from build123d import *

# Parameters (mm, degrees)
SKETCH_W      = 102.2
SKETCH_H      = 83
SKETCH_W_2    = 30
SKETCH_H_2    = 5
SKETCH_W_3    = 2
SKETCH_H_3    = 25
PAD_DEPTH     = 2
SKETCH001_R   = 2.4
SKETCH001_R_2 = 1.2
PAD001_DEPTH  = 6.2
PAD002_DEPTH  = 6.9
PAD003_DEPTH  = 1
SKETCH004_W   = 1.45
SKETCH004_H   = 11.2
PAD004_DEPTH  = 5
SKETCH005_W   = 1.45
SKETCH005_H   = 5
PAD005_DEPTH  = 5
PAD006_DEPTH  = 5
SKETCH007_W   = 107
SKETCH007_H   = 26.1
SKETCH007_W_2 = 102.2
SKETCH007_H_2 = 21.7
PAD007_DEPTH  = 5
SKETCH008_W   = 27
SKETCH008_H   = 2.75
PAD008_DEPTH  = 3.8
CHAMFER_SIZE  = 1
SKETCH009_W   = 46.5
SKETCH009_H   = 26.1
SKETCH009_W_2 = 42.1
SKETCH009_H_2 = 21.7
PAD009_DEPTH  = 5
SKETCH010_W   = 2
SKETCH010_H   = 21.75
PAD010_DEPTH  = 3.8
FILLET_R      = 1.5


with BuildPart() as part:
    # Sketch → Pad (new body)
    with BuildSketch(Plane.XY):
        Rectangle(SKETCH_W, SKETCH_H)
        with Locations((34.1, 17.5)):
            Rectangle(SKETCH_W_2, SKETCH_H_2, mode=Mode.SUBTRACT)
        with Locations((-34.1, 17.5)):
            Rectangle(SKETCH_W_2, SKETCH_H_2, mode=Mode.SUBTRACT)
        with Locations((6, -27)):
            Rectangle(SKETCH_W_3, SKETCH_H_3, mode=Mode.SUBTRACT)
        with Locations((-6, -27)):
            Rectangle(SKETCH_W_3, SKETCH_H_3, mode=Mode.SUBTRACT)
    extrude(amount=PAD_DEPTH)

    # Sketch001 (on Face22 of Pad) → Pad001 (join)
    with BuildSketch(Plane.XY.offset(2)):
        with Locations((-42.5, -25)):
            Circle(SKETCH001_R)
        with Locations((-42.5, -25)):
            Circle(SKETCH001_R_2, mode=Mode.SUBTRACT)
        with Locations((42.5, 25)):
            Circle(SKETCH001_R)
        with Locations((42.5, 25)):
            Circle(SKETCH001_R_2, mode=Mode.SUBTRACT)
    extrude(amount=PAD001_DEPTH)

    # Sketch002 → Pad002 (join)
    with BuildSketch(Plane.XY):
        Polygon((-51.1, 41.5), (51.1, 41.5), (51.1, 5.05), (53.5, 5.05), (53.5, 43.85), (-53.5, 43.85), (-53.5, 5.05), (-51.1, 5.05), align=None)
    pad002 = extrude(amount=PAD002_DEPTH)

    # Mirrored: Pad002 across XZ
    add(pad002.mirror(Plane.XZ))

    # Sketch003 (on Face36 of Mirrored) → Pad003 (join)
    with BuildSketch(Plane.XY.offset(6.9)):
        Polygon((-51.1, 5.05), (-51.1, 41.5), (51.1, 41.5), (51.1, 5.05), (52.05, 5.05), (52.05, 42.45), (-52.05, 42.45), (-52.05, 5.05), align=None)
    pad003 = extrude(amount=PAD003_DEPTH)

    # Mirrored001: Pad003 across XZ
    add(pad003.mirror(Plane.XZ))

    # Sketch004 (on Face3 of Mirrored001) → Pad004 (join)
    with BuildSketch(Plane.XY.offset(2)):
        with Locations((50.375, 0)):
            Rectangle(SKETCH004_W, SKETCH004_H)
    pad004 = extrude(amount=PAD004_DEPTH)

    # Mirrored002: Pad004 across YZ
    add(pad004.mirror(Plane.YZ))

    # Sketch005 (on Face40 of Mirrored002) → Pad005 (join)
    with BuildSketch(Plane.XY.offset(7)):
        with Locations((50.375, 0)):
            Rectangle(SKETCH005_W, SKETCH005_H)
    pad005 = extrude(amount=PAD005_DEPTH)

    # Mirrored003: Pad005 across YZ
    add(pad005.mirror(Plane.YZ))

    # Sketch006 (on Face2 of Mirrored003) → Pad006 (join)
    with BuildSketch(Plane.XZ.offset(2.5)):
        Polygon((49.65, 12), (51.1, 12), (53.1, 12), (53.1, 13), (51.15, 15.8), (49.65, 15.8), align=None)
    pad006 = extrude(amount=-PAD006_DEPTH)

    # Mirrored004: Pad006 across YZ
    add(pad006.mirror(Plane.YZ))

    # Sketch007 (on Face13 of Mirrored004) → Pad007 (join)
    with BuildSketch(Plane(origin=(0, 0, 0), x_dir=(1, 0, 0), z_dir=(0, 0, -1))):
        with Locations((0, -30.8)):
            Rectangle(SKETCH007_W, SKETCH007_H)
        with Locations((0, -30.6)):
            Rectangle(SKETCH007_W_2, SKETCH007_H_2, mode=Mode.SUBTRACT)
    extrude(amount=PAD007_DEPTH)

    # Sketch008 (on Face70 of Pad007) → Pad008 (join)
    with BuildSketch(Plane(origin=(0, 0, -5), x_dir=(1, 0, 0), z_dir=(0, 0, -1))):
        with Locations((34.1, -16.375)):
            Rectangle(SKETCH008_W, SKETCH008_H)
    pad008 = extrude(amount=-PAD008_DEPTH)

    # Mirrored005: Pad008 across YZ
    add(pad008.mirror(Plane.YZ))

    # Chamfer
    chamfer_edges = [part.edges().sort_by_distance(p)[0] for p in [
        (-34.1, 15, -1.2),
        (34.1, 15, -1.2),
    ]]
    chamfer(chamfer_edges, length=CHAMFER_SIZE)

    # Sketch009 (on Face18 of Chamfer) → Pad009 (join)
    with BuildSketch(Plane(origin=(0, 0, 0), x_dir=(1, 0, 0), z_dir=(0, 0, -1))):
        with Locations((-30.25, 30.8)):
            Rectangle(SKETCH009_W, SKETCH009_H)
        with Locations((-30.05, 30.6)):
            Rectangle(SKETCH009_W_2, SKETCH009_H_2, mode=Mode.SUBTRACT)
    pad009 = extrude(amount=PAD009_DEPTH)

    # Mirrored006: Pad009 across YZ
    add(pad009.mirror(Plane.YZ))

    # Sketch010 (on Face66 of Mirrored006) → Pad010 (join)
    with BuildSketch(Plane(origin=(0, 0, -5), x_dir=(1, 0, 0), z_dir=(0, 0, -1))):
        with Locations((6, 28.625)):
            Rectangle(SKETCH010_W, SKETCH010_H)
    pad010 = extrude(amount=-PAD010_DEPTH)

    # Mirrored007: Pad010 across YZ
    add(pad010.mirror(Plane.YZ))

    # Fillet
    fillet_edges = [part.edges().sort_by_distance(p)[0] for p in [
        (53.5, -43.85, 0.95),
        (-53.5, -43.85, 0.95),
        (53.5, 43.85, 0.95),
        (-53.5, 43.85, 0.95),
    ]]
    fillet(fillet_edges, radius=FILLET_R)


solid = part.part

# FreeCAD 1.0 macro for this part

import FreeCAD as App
import Part
import Sketcher

V = App.Vector


def edges_at(feature, points):
    """Names of the edges that pass closest to the given points."""
    edges = feature.Shape.Edges
    near = lambda p: min(range(len(edges)), key=lambda i: edges[i].distToShape(Part.Vertex(*p))[0])
    return sorted({f"Edge{near(p) + 1}" for p in points})

doc = App.newDocument("Part")
params = doc.addObject("Spreadsheet::Sheet", "Params")
for row, (alias, value) in enumerate([
    ("sketch1_width", "2 mm"),
    ("sketch1_width2", "30 mm"),
    ("sketch1_height", "83 mm"),
    ("sketch1_height2", "25 mm"),
    ("sketch1_height3", "5 mm"),
    ("pad1_length", "2 mm"),
    ("sketch2_diameter", "4.8 mm"),
    ("sketch2_diameter2", "2.4 mm"),
    ("pad2_length", "6.2 mm"),
    ("sketch3_width", "107 mm"),
    ("sketch3_width2", "102.2 mm"),
    ("sketch3_height", "38.8 mm"),
    ("sketch3_height2", "36.45 mm"),
    ("pad3_length", "6.9 mm"),
    ("sketch4_width", "102.2 mm"),
    ("sketch4_width2", "104.1 mm"),
    ("sketch4_height", "37.4 mm"),
    ("sketch4_height2", "36.45 mm"),
    ("pad4_length", "1 mm"),
    ("sketch5_height", "11.2 mm"),
    ("sketch5_width", "1.45 mm"),
    ("pad5_length", "5 mm"),
    ("sketch6_height", "5 mm"),
    ("sketch6_width", "1.45 mm"),
    ("pad6_length", "5 mm"),
    ("sketch7_height", "1 mm"),
    ("sketch7_width", "1.5 mm"),
    ("sketch7_height2", "3.8 mm"),
    ("sketch7_width2", "3.45 mm"),
    ("pad7_length", "5 mm"),
    ("sketch8_width", "107 mm"),
    ("sketch8_width2", "102.2 mm"),
    ("sketch8_height", "26.1 mm"),
    ("sketch8_height2", "21.7 mm"),
    ("pad8_length", "5 mm"),
    ("sketch9_width", "27 mm"),
    ("sketch9_height", "2.75 mm"),
    ("pad9_length", "3.8 mm"),
    ("chamfer_size", "1 mm"),
    ("sketch10_width", "46.5 mm"),
    ("sketch10_width2", "42.1 mm"),
    ("sketch10_height", "26.1 mm"),
    ("sketch10_height2", "21.7 mm"),
    ("pad10_length", "5 mm"),
    ("sketch11_width", "2 mm"),
    ("sketch11_height", "21.75 mm"),
    ("pad11_length", "3.8 mm"),
    ("fillet_radius", "1.5 mm"),
], start=1):
    params.set(f"A{row}", alias)
    params.set(f"B{row}", "=" + value)
    params.setAlias(f"B{row}", alias)

body = doc.addObject("PartDesign::Body", "Body")

sketch1 = doc.addObject("Sketcher::SketchObject", "Sketch")
body.addObject(sketch1)
sketch1.AttachmentSupport = (doc.XY_Plane, [""])
sketch1.MapMode = "FlatFace"
sketch1.addGeometry(Part.LineSegment(V(-51.1, 41.5, 0), V(-51.1, -41.5, 0)), False)
sketch1.addGeometry(Part.LineSegment(V(-51.1, -41.5, 0), V(51.1, -41.5, 0)), False)
sketch1.addGeometry(Part.LineSegment(V(51.1, -41.5, 0), V(51.1, 41.5, 0)), False)
sketch1.addGeometry(Part.LineSegment(V(51.1, 41.5, 0), V(-51.1, 41.5, 0)), False)
sketch1.addGeometry(Part.LineSegment(V(-5, -39.5, 0), V(-7, -39.5, 0)), False)
sketch1.addGeometry(Part.LineSegment(V(-7, -39.5, 0), V(-7, -14.5, 0)), False)
sketch1.addGeometry(Part.LineSegment(V(-7, -14.5, 0), V(-5, -14.5, 0)), False)
sketch1.addGeometry(Part.LineSegment(V(-5, -14.5, 0), V(-5, -39.5, 0)), False)
sketch1.addGeometry(Part.LineSegment(V(7, -39.5, 0), V(5, -39.5, 0)), False)
sketch1.addGeometry(Part.LineSegment(V(5, -39.5, 0), V(5, -14.5, 0)), False)
sketch1.addGeometry(Part.LineSegment(V(5, -14.5, 0), V(7, -14.5, 0)), False)
sketch1.addGeometry(Part.LineSegment(V(7, -14.5, 0), V(7, -39.5, 0)), False)
sketch1.addGeometry(Part.LineSegment(V(-19.1, 15, 0), V(-49.1, 15, 0)), False)
sketch1.addGeometry(Part.LineSegment(V(-49.1, 15, 0), V(-49.1, 20, 0)), False)
sketch1.addGeometry(Part.LineSegment(V(-49.1, 20, 0), V(-19.1, 20, 0)), False)
sketch1.addGeometry(Part.LineSegment(V(-19.1, 20, 0), V(-19.1, 15, 0)), False)
sketch1.addGeometry(Part.LineSegment(V(49.1, 15, 0), V(19.1, 15, 0)), False)
sketch1.addGeometry(Part.LineSegment(V(19.1, 15, 0), V(19.1, 20, 0)), False)
sketch1.addGeometry(Part.LineSegment(V(19.1, 20, 0), V(49.1, 20, 0)), False)
sketch1.addGeometry(Part.LineSegment(V(49.1, 20, 0), V(49.1, 15, 0)), False)
sketch1.addConstraint(Sketcher.Constraint("Coincident", 0, 2, 1, 1))
sketch1.addConstraint(Sketcher.Constraint("Coincident", 1, 2, 2, 1))
sketch1.addConstraint(Sketcher.Constraint("Coincident", 2, 2, 3, 1))
sketch1.addConstraint(Sketcher.Constraint("Coincident", 3, 2, 0, 1))
sketch1.addConstraint(Sketcher.Constraint("Coincident", 4, 2, 5, 1))
sketch1.addConstraint(Sketcher.Constraint("Coincident", 5, 2, 6, 1))
sketch1.addConstraint(Sketcher.Constraint("Coincident", 6, 2, 7, 1))
sketch1.addConstraint(Sketcher.Constraint("Coincident", 7, 2, 4, 1))
sketch1.addConstraint(Sketcher.Constraint("Coincident", 8, 2, 9, 1))
sketch1.addConstraint(Sketcher.Constraint("Coincident", 9, 2, 10, 1))
sketch1.addConstraint(Sketcher.Constraint("Coincident", 10, 2, 11, 1))
sketch1.addConstraint(Sketcher.Constraint("Coincident", 11, 2, 8, 1))
sketch1.addConstraint(Sketcher.Constraint("Coincident", 12, 2, 13, 1))
sketch1.addConstraint(Sketcher.Constraint("Coincident", 13, 2, 14, 1))
sketch1.addConstraint(Sketcher.Constraint("Coincident", 14, 2, 15, 1))
sketch1.addConstraint(Sketcher.Constraint("Coincident", 15, 2, 12, 1))
sketch1.addConstraint(Sketcher.Constraint("Coincident", 16, 2, 17, 1))
sketch1.addConstraint(Sketcher.Constraint("Coincident", 17, 2, 18, 1))
sketch1.addConstraint(Sketcher.Constraint("Coincident", 18, 2, 19, 1))
sketch1.addConstraint(Sketcher.Constraint("Coincident", 19, 2, 16, 1))
sketch1.addConstraint(Sketcher.Constraint("Vertical", 0))
sketch1.addConstraint(Sketcher.Constraint("Horizontal", 1))
sketch1.addConstraint(Sketcher.Constraint("Vertical", 2))
sketch1.addConstraint(Sketcher.Constraint("Horizontal", 3))
sketch1.addConstraint(Sketcher.Constraint("Horizontal", 4))
sketch1.addConstraint(Sketcher.Constraint("Vertical", 5))
sketch1.addConstraint(Sketcher.Constraint("Horizontal", 6))
sketch1.addConstraint(Sketcher.Constraint("Vertical", 7))
sketch1.addConstraint(Sketcher.Constraint("Horizontal", 8))
sketch1.addConstraint(Sketcher.Constraint("Vertical", 9))
sketch1.addConstraint(Sketcher.Constraint("Horizontal", 10))
sketch1.addConstraint(Sketcher.Constraint("Vertical", 11))
sketch1.addConstraint(Sketcher.Constraint("Horizontal", 12))
sketch1.addConstraint(Sketcher.Constraint("Vertical", 13))
sketch1.addConstraint(Sketcher.Constraint("Horizontal", 14))
sketch1.addConstraint(Sketcher.Constraint("Vertical", 15))
sketch1.addConstraint(Sketcher.Constraint("Horizontal", 16))
sketch1.addConstraint(Sketcher.Constraint("Vertical", 17))
sketch1.addConstraint(Sketcher.Constraint("Horizontal", 18))
sketch1.addConstraint(Sketcher.Constraint("Vertical", 19))
sketch1.addConstraint(Sketcher.Constraint("Symmetric", 0, 2, 2, 2, -1, 1))
sketch1.addConstraint(Sketcher.Constraint("Symmetric", 7, 2, 8, 2, -2))
sketch1.addConstraint(Sketcher.Constraint("Symmetric", 5, 2, 10, 2, -2))
sketch1.addConstraint(Sketcher.Constraint("Symmetric", 15, 2, 16, 2, -2))
sketch1.addConstraint(Sketcher.Constraint("Symmetric", 13, 2, 18, 2, -2))
sketch1.addConstraint(Sketcher.Constraint("DistanceX", 4, 2, 4, 1, 2.0))
sketch1.addConstraint(Sketcher.Constraint("DistanceX", 12, 2, 12, 1, 30.0))
sketch1.addConstraint(Sketcher.Constraint("DistanceY", 0, 2, 0, 1, 83.0))
sketch1.addConstraint(Sketcher.Constraint("DistanceY", 5, 1, 5, 2, 25.0))
sketch1.addConstraint(Sketcher.Constraint("DistanceY", 13, 1, 13, 2, 5.0))
sketch1.addConstraint(Sketcher.Constraint("DistanceX", 1, 1, 1, 2, 102.2))
sketch1.addConstraint(Sketcher.Constraint("DistanceX", 4, 2, -1, 1, 7.0))
sketch1.addConstraint(Sketcher.Constraint("DistanceY", -1, 1, 12, 2, 15.0))
sketch1.addConstraint(Sketcher.Constraint("DistanceY", 0, 2, 4, 2, 2.0))
sketch1.addConstraint(Sketcher.Constraint("DistanceX", 3, 2, 12, 2, 2.0))
sketch1.setExpression("Constraints[45]", "Params.sketch1_width")
sketch1.setExpression("Constraints[46]", "Params.sketch1_width2")
sketch1.setExpression("Constraints[47]", "Params.sketch1_height")
sketch1.setExpression("Constraints[48]", "Params.sketch1_height2")
sketch1.setExpression("Constraints[49]", "Params.sketch1_height3")
pad1 = doc.addObject("PartDesign::Pad", "Pad")
body.addObject(pad1)
pad1.Profile = sketch1
pad1.setExpression("Length", "Params.pad1_length")

sketch2 = doc.addObject("Sketcher::SketchObject", "Sketch001")
body.addObject(sketch2)
sketch2.AttachmentSupport = (doc.XY_Plane, [""])
sketch2.MapMode = "FlatFace"
sketch2.AttachmentOffset = App.Placement(V(0, 0, 2), App.Rotation())
sketch2.addGeometry(Part.Circle(V(-42.5, -25, 0), V(0, 0, 1), 2.4), False)
sketch2.addGeometry(Part.Circle(V(-42.5, -25, 0), V(0, 0, 1), 1.2), False)
sketch2.addGeometry(Part.Circle(V(42.5, 25, 0), V(0, 0, 1), 2.4), False)
sketch2.addGeometry(Part.Circle(V(42.5, 25, 0), V(0, 0, 1), 1.2), False)
sketch2.addConstraint(Sketcher.Constraint("Coincident", 1, 3, 0, 3))
sketch2.addConstraint(Sketcher.Constraint("Coincident", 3, 3, 2, 3))
sketch2.addConstraint(Sketcher.Constraint("Equal", 0, 2))
sketch2.addConstraint(Sketcher.Constraint("Equal", 1, 3))
sketch2.addConstraint(Sketcher.Constraint("Symmetric", 0, 3, 2, 3, -1, 1))
sketch2.addConstraint(Sketcher.Constraint("Diameter", 0, 4.8))
sketch2.addConstraint(Sketcher.Constraint("Diameter", 1, 2.4))
sketch2.addConstraint(Sketcher.Constraint("DistanceY", 0, 3, -1, 1, 25.0))
sketch2.addConstraint(Sketcher.Constraint("DistanceX", 0, 3, 2, 3, 85.0))
sketch2.setExpression("Constraints[5]", "Params.sketch2_diameter")
sketch2.setExpression("Constraints[6]", "Params.sketch2_diameter2")
pad2 = doc.addObject("PartDesign::Pad", "Pad001")
body.addObject(pad2)
pad2.Profile = sketch2
pad2.setExpression("Length", "Params.pad2_length")

sketch3 = doc.addObject("Sketcher::SketchObject", "Sketch002")
body.addObject(sketch3)
sketch3.AttachmentSupport = (doc.XY_Plane, [""])
sketch3.MapMode = "FlatFace"
sketch3.addGeometry(Part.LineSegment(V(-51.1, 41.5, 0), V(51.1, 41.5, 0)), False)
sketch3.addGeometry(Part.LineSegment(V(51.1, 41.5, 0), V(51.1, 5.05, 0)), False)
sketch3.addGeometry(Part.LineSegment(V(51.1, 5.05, 0), V(53.5, 5.05, 0)), False)
sketch3.addGeometry(Part.LineSegment(V(53.5, 5.05, 0), V(53.5, 43.85, 0)), False)
sketch3.addGeometry(Part.LineSegment(V(53.5, 43.85, 0), V(-53.5, 43.85, 0)), False)
sketch3.addGeometry(Part.LineSegment(V(-53.5, 43.85, 0), V(-53.5, 5.05, 0)), False)
sketch3.addGeometry(Part.LineSegment(V(-53.5, 5.05, 0), V(-51.1, 5.05, 0)), False)
sketch3.addGeometry(Part.LineSegment(V(-51.1, 5.05, 0), V(-51.1, 41.5, 0)), False)
sketch3.addConstraint(Sketcher.Constraint("Coincident", 0, 2, 1, 1))
sketch3.addConstraint(Sketcher.Constraint("Coincident", 1, 2, 2, 1))
sketch3.addConstraint(Sketcher.Constraint("Coincident", 2, 2, 3, 1))
sketch3.addConstraint(Sketcher.Constraint("Coincident", 3, 2, 4, 1))
sketch3.addConstraint(Sketcher.Constraint("Coincident", 4, 2, 5, 1))
sketch3.addConstraint(Sketcher.Constraint("Coincident", 5, 2, 6, 1))
sketch3.addConstraint(Sketcher.Constraint("Coincident", 6, 2, 7, 1))
sketch3.addConstraint(Sketcher.Constraint("Coincident", 7, 2, 0, 1))
sketch3.addConstraint(Sketcher.Constraint("Horizontal", 0))
sketch3.addConstraint(Sketcher.Constraint("Vertical", 1))
sketch3.addConstraint(Sketcher.Constraint("Horizontal", 2))
sketch3.addConstraint(Sketcher.Constraint("Vertical", 3))
sketch3.addConstraint(Sketcher.Constraint("Horizontal", 4))
sketch3.addConstraint(Sketcher.Constraint("Vertical", 5))
sketch3.addConstraint(Sketcher.Constraint("Horizontal", 6))
sketch3.addConstraint(Sketcher.Constraint("Vertical", 7))
sketch3.addConstraint(Sketcher.Constraint("Symmetric", 2, 2, 5, 2, -2))
sketch3.addConstraint(Sketcher.Constraint("Equal", 2, 6))
sketch3.addConstraint(Sketcher.Constraint("DistanceX", 4, 2, 4, 1, 107.0))
sketch3.addConstraint(Sketcher.Constraint("DistanceX", 0, 1, 0, 2, 102.2))
sketch3.addConstraint(Sketcher.Constraint("DistanceY", 3, 1, 3, 2, 38.8))
sketch3.addConstraint(Sketcher.Constraint("DistanceY", 1, 2, 1, 1, 36.45))
sketch3.addConstraint(Sketcher.Constraint("DistanceY", -1, 1, 0, 2, 41.5))
sketch3.setExpression("Constraints[18]", "Params.sketch3_width")
sketch3.setExpression("Constraints[19]", "Params.sketch3_width2")
sketch3.setExpression("Constraints[20]", "Params.sketch3_height")
sketch3.setExpression("Constraints[21]", "Params.sketch3_height2")
pad3 = doc.addObject("PartDesign::Pad", "Pad002")
body.addObject(pad3)
pad3.Profile = sketch3
pad3.setExpression("Length", "Params.pad3_length")
doc.recompute()

mirrored = doc.addObject("PartDesign::Mirrored", "Mirrored")
body.addObject(mirrored)
mirrored.Originals = [pad3]
mirrored.MirrorPlane = (doc.XZ_Plane, [""])
body.Tip = mirrored

sketch4 = doc.addObject("Sketcher::SketchObject", "Sketch003")
body.addObject(sketch4)
sketch4.AttachmentSupport = (doc.XY_Plane, [""])
sketch4.MapMode = "FlatFace"
sketch4.AttachmentOffset = App.Placement(V(0, 0, 6.9), App.Rotation())
sketch4.addGeometry(Part.LineSegment(V(-51.1, 5.05, 0), V(-51.1, 41.5, 0)), False)
sketch4.addGeometry(Part.LineSegment(V(-51.1, 41.5, 0), V(51.1, 41.5, 0)), False)
sketch4.addGeometry(Part.LineSegment(V(51.1, 41.5, 0), V(51.1, 5.05, 0)), False)
sketch4.addGeometry(Part.LineSegment(V(51.1, 5.05, 0), V(52.05, 5.05, 0)), False)
sketch4.addGeometry(Part.LineSegment(V(52.05, 5.05, 0), V(52.05, 42.45, 0)), False)
sketch4.addGeometry(Part.LineSegment(V(52.05, 42.45, 0), V(-52.05, 42.45, 0)), False)
sketch4.addGeometry(Part.LineSegment(V(-52.05, 42.45, 0), V(-52.05, 5.05, 0)), False)
sketch4.addGeometry(Part.LineSegment(V(-52.05, 5.05, 0), V(-51.1, 5.05, 0)), False)
sketch4.addConstraint(Sketcher.Constraint("Coincident", 0, 2, 1, 1))
sketch4.addConstraint(Sketcher.Constraint("Coincident", 1, 2, 2, 1))
sketch4.addConstraint(Sketcher.Constraint("Coincident", 2, 2, 3, 1))
sketch4.addConstraint(Sketcher.Constraint("Coincident", 3, 2, 4, 1))
sketch4.addConstraint(Sketcher.Constraint("Coincident", 4, 2, 5, 1))
sketch4.addConstraint(Sketcher.Constraint("Coincident", 5, 2, 6, 1))
sketch4.addConstraint(Sketcher.Constraint("Coincident", 6, 2, 7, 1))
sketch4.addConstraint(Sketcher.Constraint("Coincident", 7, 2, 0, 1))
sketch4.addConstraint(Sketcher.Constraint("Vertical", 0))
sketch4.addConstraint(Sketcher.Constraint("Horizontal", 1))
sketch4.addConstraint(Sketcher.Constraint("Vertical", 2))
sketch4.addConstraint(Sketcher.Constraint("Horizontal", 3))
sketch4.addConstraint(Sketcher.Constraint("Vertical", 4))
sketch4.addConstraint(Sketcher.Constraint("Horizontal", 5))
sketch4.addConstraint(Sketcher.Constraint("Vertical", 6))
sketch4.addConstraint(Sketcher.Constraint("Horizontal", 7))
sketch4.addConstraint(Sketcher.Constraint("Symmetric", 3, 2, 6, 2, -2))
sketch4.addConstraint(Sketcher.Constraint("Equal", 3, 7))
sketch4.addConstraint(Sketcher.Constraint("DistanceX", 1, 1, 1, 2, 102.2))
sketch4.addConstraint(Sketcher.Constraint("DistanceX", 5, 2, 5, 1, 104.1))
sketch4.addConstraint(Sketcher.Constraint("DistanceY", 4, 1, 4, 2, 37.4))
sketch4.addConstraint(Sketcher.Constraint("DistanceY", 0, 1, 0, 2, 36.45))
sketch4.addConstraint(Sketcher.Constraint("DistanceY", -1, 1, 0, 2, 41.5))
sketch4.setExpression("Constraints[18]", "Params.sketch4_width")
sketch4.setExpression("Constraints[19]", "Params.sketch4_width2")
sketch4.setExpression("Constraints[20]", "Params.sketch4_height")
sketch4.setExpression("Constraints[21]", "Params.sketch4_height2")
pad4 = doc.addObject("PartDesign::Pad", "Pad003")
body.addObject(pad4)
pad4.Profile = sketch4
pad4.setExpression("Length", "Params.pad4_length")
doc.recompute()

mirrored2 = doc.addObject("PartDesign::Mirrored", "Mirrored001")
body.addObject(mirrored2)
mirrored2.Originals = [pad4]
mirrored2.MirrorPlane = (doc.XZ_Plane, [""])
body.Tip = mirrored2

sketch5 = doc.addObject("Sketcher::SketchObject", "Sketch004")
body.addObject(sketch5)
sketch5.AttachmentSupport = (doc.XY_Plane, [""])
sketch5.MapMode = "FlatFace"
sketch5.AttachmentOffset = App.Placement(V(0, 0, 2), App.Rotation())
sketch5.addGeometry(Part.LineSegment(V(49.65, 5.6, 0), V(49.65, -5.6, 0)), False)
sketch5.addGeometry(Part.LineSegment(V(49.65, -5.6, 0), V(51.1, -5.6, 0)), False)
sketch5.addGeometry(Part.LineSegment(V(51.1, -5.6, 0), V(51.1, 5.6, 0)), False)
sketch5.addGeometry(Part.LineSegment(V(51.1, 5.6, 0), V(49.65, 5.6, 0)), False)
sketch5.addConstraint(Sketcher.Constraint("Coincident", 0, 2, 1, 1))
sketch5.addConstraint(Sketcher.Constraint("Coincident", 1, 2, 2, 1))
sketch5.addConstraint(Sketcher.Constraint("Coincident", 2, 2, 3, 1))
sketch5.addConstraint(Sketcher.Constraint("Coincident", 3, 2, 0, 1))
sketch5.addConstraint(Sketcher.Constraint("Vertical", 0))
sketch5.addConstraint(Sketcher.Constraint("Horizontal", 1))
sketch5.addConstraint(Sketcher.Constraint("Vertical", 2))
sketch5.addConstraint(Sketcher.Constraint("Horizontal", 3))
sketch5.addConstraint(Sketcher.Constraint("DistanceY", 0, 2, 0, 1, 11.2))
sketch5.addConstraint(Sketcher.Constraint("DistanceX", 1, 1, 1, 2, 1.45))
sketch5.addConstraint(Sketcher.Constraint("DistanceY", 0, 2, -1, 1, 5.6))
sketch5.addConstraint(Sketcher.Constraint("DistanceX", -1, 1, 1, 2, 51.1))
sketch5.setExpression("Constraints[8]", "Params.sketch5_height")
sketch5.setExpression("Constraints[9]", "Params.sketch5_width")
pad5 = doc.addObject("PartDesign::Pad", "Pad004")
body.addObject(pad5)
pad5.Profile = sketch5
pad5.setExpression("Length", "Params.pad5_length")
doc.recompute()

mirrored3 = doc.addObject("PartDesign::Mirrored", "Mirrored002")
body.addObject(mirrored3)
mirrored3.Originals = [pad5]
mirrored3.MirrorPlane = (doc.YZ_Plane, [""])
body.Tip = mirrored3

sketch6 = doc.addObject("Sketcher::SketchObject", "Sketch005")
body.addObject(sketch6)
sketch6.AttachmentSupport = (doc.XY_Plane, [""])
sketch6.MapMode = "FlatFace"
sketch6.AttachmentOffset = App.Placement(V(0, 0, 7), App.Rotation())
sketch6.addGeometry(Part.LineSegment(V(49.65, 2.5, 0), V(49.65, -2.5, 0)), False)
sketch6.addGeometry(Part.LineSegment(V(49.65, -2.5, 0), V(51.1, -2.5, 0)), False)
sketch6.addGeometry(Part.LineSegment(V(51.1, -2.5, 0), V(51.1, 2.5, 0)), False)
sketch6.addGeometry(Part.LineSegment(V(51.1, 2.5, 0), V(49.65, 2.5, 0)), False)
sketch6.addConstraint(Sketcher.Constraint("Coincident", 0, 2, 1, 1))
sketch6.addConstraint(Sketcher.Constraint("Coincident", 1, 2, 2, 1))
sketch6.addConstraint(Sketcher.Constraint("Coincident", 2, 2, 3, 1))
sketch6.addConstraint(Sketcher.Constraint("Coincident", 3, 2, 0, 1))
sketch6.addConstraint(Sketcher.Constraint("Vertical", 0))
sketch6.addConstraint(Sketcher.Constraint("Horizontal", 1))
sketch6.addConstraint(Sketcher.Constraint("Vertical", 2))
sketch6.addConstraint(Sketcher.Constraint("Horizontal", 3))
sketch6.addConstraint(Sketcher.Constraint("DistanceY", 0, 2, 0, 1, 5.0))
sketch6.addConstraint(Sketcher.Constraint("DistanceX", 1, 1, 1, 2, 1.45))
sketch6.addConstraint(Sketcher.Constraint("DistanceY", 0, 2, -1, 1, 2.5))
sketch6.addConstraint(Sketcher.Constraint("DistanceX", -1, 1, 1, 2, 51.1))
sketch6.setExpression("Constraints[8]", "Params.sketch6_height")
sketch6.setExpression("Constraints[9]", "Params.sketch6_width")
pad6 = doc.addObject("PartDesign::Pad", "Pad005")
body.addObject(pad6)
pad6.Profile = sketch6
pad6.setExpression("Length", "Params.pad6_length")
doc.recompute()

mirrored4 = doc.addObject("PartDesign::Mirrored", "Mirrored003")
body.addObject(mirrored4)
mirrored4.Originals = [pad6]
mirrored4.MirrorPlane = (doc.YZ_Plane, [""])
body.Tip = mirrored4

sketch7 = doc.addObject("Sketcher::SketchObject", "Sketch006")
body.addObject(sketch7)
sketch7.AttachmentSupport = (doc.XZ_Plane, [""])
sketch7.MapMode = "FlatFace"
sketch7.AttachmentOffset = App.Placement(V(0, 0, 2.5), App.Rotation())
sketch7.addGeometry(Part.LineSegment(V(49.65, 12, 0), V(53.1, 12, 0)), False)
sketch7.addGeometry(Part.LineSegment(V(53.1, 12, 0), V(53.1, 13, 0)), False)
sketch7.addGeometry(Part.LineSegment(V(53.1, 13, 0), V(51.15, 15.8, 0)), False)
sketch7.addGeometry(Part.LineSegment(V(51.15, 15.8, 0), V(49.65, 15.8, 0)), False)
sketch7.addGeometry(Part.LineSegment(V(49.65, 15.8, 0), V(49.65, 12, 0)), False)
sketch7.addConstraint(Sketcher.Constraint("Coincident", 0, 2, 1, 1))
sketch7.addConstraint(Sketcher.Constraint("Coincident", 1, 2, 2, 1))
sketch7.addConstraint(Sketcher.Constraint("Coincident", 2, 2, 3, 1))
sketch7.addConstraint(Sketcher.Constraint("Coincident", 3, 2, 4, 1))
sketch7.addConstraint(Sketcher.Constraint("Coincident", 4, 2, 0, 1))
sketch7.addConstraint(Sketcher.Constraint("Horizontal", 0))
sketch7.addConstraint(Sketcher.Constraint("Vertical", 1))
sketch7.addConstraint(Sketcher.Constraint("Horizontal", 3))
sketch7.addConstraint(Sketcher.Constraint("Vertical", 4))
sketch7.addConstraint(Sketcher.Constraint("DistanceY", 1, 1, 1, 2, 1.0))
sketch7.addConstraint(Sketcher.Constraint("DistanceX", 3, 2, 3, 1, 1.5))
sketch7.addConstraint(Sketcher.Constraint("DistanceY", 4, 2, 4, 1, 3.8))
sketch7.addConstraint(Sketcher.Constraint("DistanceY", -1, 1, 0, 2, 12.0))
sketch7.addConstraint(Sketcher.Constraint("DistanceX", 0, 1, 0, 2, 3.45))
sketch7.addConstraint(Sketcher.Constraint("DistanceX", -1, 1, 0, 2, 53.1))
sketch7.setExpression("Constraints[9]", "Params.sketch7_height")
sketch7.setExpression("Constraints[10]", "Params.sketch7_width")
sketch7.setExpression("Constraints[11]", "Params.sketch7_height2")
sketch7.setExpression("Constraints[13]", "Params.sketch7_width2")
pad7 = doc.addObject("PartDesign::Pad", "Pad006")
body.addObject(pad7)
pad7.Profile = sketch7
pad7.setExpression("Length", "Params.pad7_length")
pad7.Reversed = True
doc.recompute()

mirrored5 = doc.addObject("PartDesign::Mirrored", "Mirrored004")
body.addObject(mirrored5)
mirrored5.Originals = [pad7]
mirrored5.MirrorPlane = (doc.YZ_Plane, [""])
body.Tip = mirrored5

sketch8 = doc.addObject("Sketcher::SketchObject", "Sketch007")
body.addObject(sketch8)
sketch8.AttachmentSupport = (doc.XY_Plane, [""])
sketch8.MapMode = "FlatFace"
sketch8.addGeometry(Part.LineSegment(V(-53.5, 17.75, 0), V(-53.5, 43.85, 0)), False)
sketch8.addGeometry(Part.LineSegment(V(-53.5, 43.85, 0), V(53.5, 43.85, 0)), False)
sketch8.addGeometry(Part.LineSegment(V(53.5, 43.85, 0), V(53.5, 17.75, 0)), False)
sketch8.addGeometry(Part.LineSegment(V(53.5, 17.75, 0), V(-53.5, 17.75, 0)), False)
sketch8.addGeometry(Part.LineSegment(V(51.1, 41.45, 0), V(-51.1, 41.45, 0)), False)
sketch8.addGeometry(Part.LineSegment(V(-51.1, 41.45, 0), V(-51.1, 19.75, 0)), False)
sketch8.addGeometry(Part.LineSegment(V(-51.1, 19.75, 0), V(51.1, 19.75, 0)), False)
sketch8.addGeometry(Part.LineSegment(V(51.1, 19.75, 0), V(51.1, 41.45, 0)), False)
sketch8.addConstraint(Sketcher.Constraint("Coincident", 0, 2, 1, 1))
sketch8.addConstraint(Sketcher.Constraint("Coincident", 1, 2, 2, 1))
sketch8.addConstraint(Sketcher.Constraint("Coincident", 2, 2, 3, 1))
sketch8.addConstraint(Sketcher.Constraint("Coincident", 3, 2, 0, 1))
sketch8.addConstraint(Sketcher.Constraint("Coincident", 4, 2, 5, 1))
sketch8.addConstraint(Sketcher.Constraint("Coincident", 5, 2, 6, 1))
sketch8.addConstraint(Sketcher.Constraint("Coincident", 6, 2, 7, 1))
sketch8.addConstraint(Sketcher.Constraint("Coincident", 7, 2, 4, 1))
sketch8.addConstraint(Sketcher.Constraint("Vertical", 0))
sketch8.addConstraint(Sketcher.Constraint("Horizontal", 1))
sketch8.addConstraint(Sketcher.Constraint("Vertical", 2))
sketch8.addConstraint(Sketcher.Constraint("Horizontal", 3))
sketch8.addConstraint(Sketcher.Constraint("Horizontal", 4))
sketch8.addConstraint(Sketcher.Constraint("Vertical", 5))
sketch8.addConstraint(Sketcher.Constraint("Horizontal", 6))
sketch8.addConstraint(Sketcher.Constraint("Vertical", 7))
sketch8.addConstraint(Sketcher.Constraint("DistanceX", 1, 1, 1, 2, 107.0))
sketch8.addConstraint(Sketcher.Constraint("DistanceX", 4, 2, 4, 1, 102.2))
sketch8.addConstraint(Sketcher.Constraint("DistanceY", 0, 1, 0, 2, 26.1))
sketch8.addConstraint(Sketcher.Constraint("DistanceY", 5, 2, 5, 1, 21.7))
sketch8.addConstraint(Sketcher.Constraint("DistanceY", 3, 2, 5, 2, 2.0))
sketch8.addConstraint(Sketcher.Constraint("DistanceX", 0, 2, -1, 1, 53.5))
sketch8.addConstraint(Sketcher.Constraint("DistanceX", 4, 2, -1, 1, 51.1))
sketch8.addConstraint(Sketcher.Constraint("DistanceY", -1, 1, 0, 2, 43.85))
sketch8.setExpression("Constraints[16]", "Params.sketch8_width")
sketch8.setExpression("Constraints[17]", "Params.sketch8_width2")
sketch8.setExpression("Constraints[18]", "Params.sketch8_height")
sketch8.setExpression("Constraints[19]", "Params.sketch8_height2")
pad8 = doc.addObject("PartDesign::Pad", "Pad007")
body.addObject(pad8)
pad8.Profile = sketch8
pad8.setExpression("Length", "Params.pad8_length")
pad8.Reversed = True

sketch9 = doc.addObject("Sketcher::SketchObject", "Sketch008")
body.addObject(sketch9)
sketch9.AttachmentSupport = (doc.XY_Plane, [""])
sketch9.MapMode = "FlatFace"
sketch9.AttachmentOffset = App.Placement(V(0, 0, -5), App.Rotation())
sketch9.addGeometry(Part.LineSegment(V(20.6, 15, 0), V(20.6, 17.75, 0)), False)
sketch9.addGeometry(Part.LineSegment(V(20.6, 17.75, 0), V(47.6, 17.75, 0)), False)
sketch9.addGeometry(Part.LineSegment(V(47.6, 17.75, 0), V(47.6, 15, 0)), False)
sketch9.addGeometry(Part.LineSegment(V(47.6, 15, 0), V(20.6, 15, 0)), False)
sketch9.addConstraint(Sketcher.Constraint("Coincident", 0, 2, 1, 1))
sketch9.addConstraint(Sketcher.Constraint("Coincident", 1, 2, 2, 1))
sketch9.addConstraint(Sketcher.Constraint("Coincident", 2, 2, 3, 1))
sketch9.addConstraint(Sketcher.Constraint("Coincident", 3, 2, 0, 1))
sketch9.addConstraint(Sketcher.Constraint("Vertical", 0))
sketch9.addConstraint(Sketcher.Constraint("Horizontal", 1))
sketch9.addConstraint(Sketcher.Constraint("Vertical", 2))
sketch9.addConstraint(Sketcher.Constraint("Horizontal", 3))
sketch9.addConstraint(Sketcher.Constraint("DistanceX", 1, 1, 1, 2, 27.0))
sketch9.addConstraint(Sketcher.Constraint("DistanceY", -1, 1, 2, 2, 15.0))
sketch9.addConstraint(Sketcher.Constraint("DistanceY", 0, 1, 0, 2, 2.75))
sketch9.addConstraint(Sketcher.Constraint("DistanceX", -1, 1, 0, 2, 20.6))
sketch9.setExpression("Constraints[8]", "Params.sketch9_width")
sketch9.setExpression("Constraints[10]", "Params.sketch9_height")
pad9 = doc.addObject("PartDesign::Pad", "Pad008")
body.addObject(pad9)
pad9.Profile = sketch9
pad9.setExpression("Length", "Params.pad9_length")
doc.recompute()

mirrored6 = doc.addObject("PartDesign::Mirrored", "Mirrored005")
body.addObject(mirrored6)
mirrored6.Originals = [pad9]
mirrored6.MirrorPlane = (doc.YZ_Plane, [""])
body.Tip = mirrored6
doc.recompute()

chamfer = doc.addObject("PartDesign::Chamfer", "Chamfer")
body.addObject(chamfer)
chamfer.Base = (mirrored6, edges_at(mirrored6, [(-34.1, 15, -1.2), (34.1, 15, -1.2)]))
chamfer.setExpression("Size", "Params.chamfer_size")

sketch10 = doc.addObject("Sketcher::SketchObject", "Sketch009")
body.addObject(sketch10)
sketch10.AttachmentSupport = (doc.XY_Plane, [""])
sketch10.MapMode = "FlatFace"
sketch10.addGeometry(Part.LineSegment(V(-53.5, -43.85, 0), V(-53.5, -17.75, 0)), False)
sketch10.addGeometry(Part.LineSegment(V(-53.5, -17.75, 0), V(-7, -17.75, 0)), False)
sketch10.addGeometry(Part.LineSegment(V(-7, -17.75, 0), V(-7, -43.85, 0)), False)
sketch10.addGeometry(Part.LineSegment(V(-7, -43.85, 0), V(-53.5, -43.85, 0)), False)
sketch10.addGeometry(Part.LineSegment(V(-9, -19.75, 0), V(-51.1, -19.75, 0)), False)
sketch10.addGeometry(Part.LineSegment(V(-51.1, -19.75, 0), V(-51.1, -41.45, 0)), False)
sketch10.addGeometry(Part.LineSegment(V(-51.1, -41.45, 0), V(-9, -41.45, 0)), False)
sketch10.addGeometry(Part.LineSegment(V(-9, -41.45, 0), V(-9, -19.75, 0)), False)
sketch10.addConstraint(Sketcher.Constraint("Coincident", 0, 2, 1, 1))
sketch10.addConstraint(Sketcher.Constraint("Coincident", 1, 2, 2, 1))
sketch10.addConstraint(Sketcher.Constraint("Coincident", 2, 2, 3, 1))
sketch10.addConstraint(Sketcher.Constraint("Coincident", 3, 2, 0, 1))
sketch10.addConstraint(Sketcher.Constraint("Coincident", 4, 2, 5, 1))
sketch10.addConstraint(Sketcher.Constraint("Coincident", 5, 2, 6, 1))
sketch10.addConstraint(Sketcher.Constraint("Coincident", 6, 2, 7, 1))
sketch10.addConstraint(Sketcher.Constraint("Coincident", 7, 2, 4, 1))
sketch10.addConstraint(Sketcher.Constraint("Vertical", 0))
sketch10.addConstraint(Sketcher.Constraint("Horizontal", 1))
sketch10.addConstraint(Sketcher.Constraint("Vertical", 2))
sketch10.addConstraint(Sketcher.Constraint("Horizontal", 3))
sketch10.addConstraint(Sketcher.Constraint("Horizontal", 4))
sketch10.addConstraint(Sketcher.Constraint("Vertical", 5))
sketch10.addConstraint(Sketcher.Constraint("Horizontal", 6))
sketch10.addConstraint(Sketcher.Constraint("Vertical", 7))
sketch10.addConstraint(Sketcher.Constraint("DistanceX", 1, 1, 1, 2, 46.5))
sketch10.addConstraint(Sketcher.Constraint("DistanceX", 4, 2, 4, 1, 42.1))
sketch10.addConstraint(Sketcher.Constraint("DistanceY", 0, 1, 0, 2, 26.1))
sketch10.addConstraint(Sketcher.Constraint("DistanceY", 5, 2, 5, 1, 21.7))
sketch10.addConstraint(Sketcher.Constraint("DistanceX", 1, 2, -1, 1, 7.0))
sketch10.addConstraint(Sketcher.Constraint("DistanceX", 6, 2, -1, 1, 9.0))
sketch10.addConstraint(Sketcher.Constraint("DistanceY", 4, 2, 0, 2, 2.0))
sketch10.addConstraint(Sketcher.Constraint("DistanceY", 0, 2, -1, 1, 17.75))
sketch10.setExpression("Constraints[16]", "Params.sketch10_width")
sketch10.setExpression("Constraints[17]", "Params.sketch10_width2")
sketch10.setExpression("Constraints[18]", "Params.sketch10_height")
sketch10.setExpression("Constraints[19]", "Params.sketch10_height2")
pad10 = doc.addObject("PartDesign::Pad", "Pad009")
body.addObject(pad10)
pad10.Profile = sketch10
pad10.setExpression("Length", "Params.pad10_length")
pad10.Reversed = True
doc.recompute()

mirrored7 = doc.addObject("PartDesign::Mirrored", "Mirrored006")
body.addObject(mirrored7)
mirrored7.Originals = [pad10]
mirrored7.MirrorPlane = (doc.YZ_Plane, [""])
body.Tip = mirrored7

sketch11 = doc.addObject("Sketcher::SketchObject", "Sketch010")
body.addObject(sketch11)
sketch11.AttachmentSupport = (doc.XY_Plane, [""])
sketch11.MapMode = "FlatFace"
sketch11.AttachmentOffset = App.Placement(V(0, 0, -5), App.Rotation())
sketch11.addGeometry(Part.LineSegment(V(5, -39.5, 0), V(5, -17.75, 0)), False)
sketch11.addGeometry(Part.LineSegment(V(5, -17.75, 0), V(7, -17.75, 0)), False)
sketch11.addGeometry(Part.LineSegment(V(7, -17.75, 0), V(7, -39.5, 0)), False)
sketch11.addGeometry(Part.LineSegment(V(7, -39.5, 0), V(5, -39.5, 0)), False)
sketch11.addConstraint(Sketcher.Constraint("Coincident", 0, 2, 1, 1))
sketch11.addConstraint(Sketcher.Constraint("Coincident", 1, 2, 2, 1))
sketch11.addConstraint(Sketcher.Constraint("Coincident", 2, 2, 3, 1))
sketch11.addConstraint(Sketcher.Constraint("Coincident", 3, 2, 0, 1))
sketch11.addConstraint(Sketcher.Constraint("Vertical", 0))
sketch11.addConstraint(Sketcher.Constraint("Horizontal", 1))
sketch11.addConstraint(Sketcher.Constraint("Vertical", 2))
sketch11.addConstraint(Sketcher.Constraint("Horizontal", 3))
sketch11.addConstraint(Sketcher.Constraint("DistanceX", 1, 1, 1, 2, 2.0))
sketch11.addConstraint(Sketcher.Constraint("DistanceX", -1, 1, 0, 2, 5.0))
sketch11.addConstraint(Sketcher.Constraint("DistanceY", 0, 1, 0, 2, 21.75))
sketch11.addConstraint(Sketcher.Constraint("DistanceY", 2, 2, -1, 1, 39.5))
sketch11.setExpression("Constraints[8]", "Params.sketch11_width")
sketch11.setExpression("Constraints[10]", "Params.sketch11_height")
pad11 = doc.addObject("PartDesign::Pad", "Pad010")
body.addObject(pad11)
pad11.Profile = sketch11
pad11.setExpression("Length", "Params.pad11_length")
doc.recompute()

mirrored8 = doc.addObject("PartDesign::Mirrored", "Mirrored007")
body.addObject(mirrored8)
mirrored8.Originals = [pad11]
mirrored8.MirrorPlane = (doc.YZ_Plane, [""])
body.Tip = mirrored8
doc.recompute()

fillet = doc.addObject("PartDesign::Fillet", "Fillet")
body.addObject(fillet)
fillet.Base = (mirrored8, edges_at(mirrored8, [
    (53.5, -43.85, 0.95),
    (-53.5, -43.85, 0.95),
    (53.5, 43.85, 0.95),
    (-53.5, 43.85, 0.95),
]))
fillet.setExpression("Radius", "Params.fillet_radius")

doc.recompute()
